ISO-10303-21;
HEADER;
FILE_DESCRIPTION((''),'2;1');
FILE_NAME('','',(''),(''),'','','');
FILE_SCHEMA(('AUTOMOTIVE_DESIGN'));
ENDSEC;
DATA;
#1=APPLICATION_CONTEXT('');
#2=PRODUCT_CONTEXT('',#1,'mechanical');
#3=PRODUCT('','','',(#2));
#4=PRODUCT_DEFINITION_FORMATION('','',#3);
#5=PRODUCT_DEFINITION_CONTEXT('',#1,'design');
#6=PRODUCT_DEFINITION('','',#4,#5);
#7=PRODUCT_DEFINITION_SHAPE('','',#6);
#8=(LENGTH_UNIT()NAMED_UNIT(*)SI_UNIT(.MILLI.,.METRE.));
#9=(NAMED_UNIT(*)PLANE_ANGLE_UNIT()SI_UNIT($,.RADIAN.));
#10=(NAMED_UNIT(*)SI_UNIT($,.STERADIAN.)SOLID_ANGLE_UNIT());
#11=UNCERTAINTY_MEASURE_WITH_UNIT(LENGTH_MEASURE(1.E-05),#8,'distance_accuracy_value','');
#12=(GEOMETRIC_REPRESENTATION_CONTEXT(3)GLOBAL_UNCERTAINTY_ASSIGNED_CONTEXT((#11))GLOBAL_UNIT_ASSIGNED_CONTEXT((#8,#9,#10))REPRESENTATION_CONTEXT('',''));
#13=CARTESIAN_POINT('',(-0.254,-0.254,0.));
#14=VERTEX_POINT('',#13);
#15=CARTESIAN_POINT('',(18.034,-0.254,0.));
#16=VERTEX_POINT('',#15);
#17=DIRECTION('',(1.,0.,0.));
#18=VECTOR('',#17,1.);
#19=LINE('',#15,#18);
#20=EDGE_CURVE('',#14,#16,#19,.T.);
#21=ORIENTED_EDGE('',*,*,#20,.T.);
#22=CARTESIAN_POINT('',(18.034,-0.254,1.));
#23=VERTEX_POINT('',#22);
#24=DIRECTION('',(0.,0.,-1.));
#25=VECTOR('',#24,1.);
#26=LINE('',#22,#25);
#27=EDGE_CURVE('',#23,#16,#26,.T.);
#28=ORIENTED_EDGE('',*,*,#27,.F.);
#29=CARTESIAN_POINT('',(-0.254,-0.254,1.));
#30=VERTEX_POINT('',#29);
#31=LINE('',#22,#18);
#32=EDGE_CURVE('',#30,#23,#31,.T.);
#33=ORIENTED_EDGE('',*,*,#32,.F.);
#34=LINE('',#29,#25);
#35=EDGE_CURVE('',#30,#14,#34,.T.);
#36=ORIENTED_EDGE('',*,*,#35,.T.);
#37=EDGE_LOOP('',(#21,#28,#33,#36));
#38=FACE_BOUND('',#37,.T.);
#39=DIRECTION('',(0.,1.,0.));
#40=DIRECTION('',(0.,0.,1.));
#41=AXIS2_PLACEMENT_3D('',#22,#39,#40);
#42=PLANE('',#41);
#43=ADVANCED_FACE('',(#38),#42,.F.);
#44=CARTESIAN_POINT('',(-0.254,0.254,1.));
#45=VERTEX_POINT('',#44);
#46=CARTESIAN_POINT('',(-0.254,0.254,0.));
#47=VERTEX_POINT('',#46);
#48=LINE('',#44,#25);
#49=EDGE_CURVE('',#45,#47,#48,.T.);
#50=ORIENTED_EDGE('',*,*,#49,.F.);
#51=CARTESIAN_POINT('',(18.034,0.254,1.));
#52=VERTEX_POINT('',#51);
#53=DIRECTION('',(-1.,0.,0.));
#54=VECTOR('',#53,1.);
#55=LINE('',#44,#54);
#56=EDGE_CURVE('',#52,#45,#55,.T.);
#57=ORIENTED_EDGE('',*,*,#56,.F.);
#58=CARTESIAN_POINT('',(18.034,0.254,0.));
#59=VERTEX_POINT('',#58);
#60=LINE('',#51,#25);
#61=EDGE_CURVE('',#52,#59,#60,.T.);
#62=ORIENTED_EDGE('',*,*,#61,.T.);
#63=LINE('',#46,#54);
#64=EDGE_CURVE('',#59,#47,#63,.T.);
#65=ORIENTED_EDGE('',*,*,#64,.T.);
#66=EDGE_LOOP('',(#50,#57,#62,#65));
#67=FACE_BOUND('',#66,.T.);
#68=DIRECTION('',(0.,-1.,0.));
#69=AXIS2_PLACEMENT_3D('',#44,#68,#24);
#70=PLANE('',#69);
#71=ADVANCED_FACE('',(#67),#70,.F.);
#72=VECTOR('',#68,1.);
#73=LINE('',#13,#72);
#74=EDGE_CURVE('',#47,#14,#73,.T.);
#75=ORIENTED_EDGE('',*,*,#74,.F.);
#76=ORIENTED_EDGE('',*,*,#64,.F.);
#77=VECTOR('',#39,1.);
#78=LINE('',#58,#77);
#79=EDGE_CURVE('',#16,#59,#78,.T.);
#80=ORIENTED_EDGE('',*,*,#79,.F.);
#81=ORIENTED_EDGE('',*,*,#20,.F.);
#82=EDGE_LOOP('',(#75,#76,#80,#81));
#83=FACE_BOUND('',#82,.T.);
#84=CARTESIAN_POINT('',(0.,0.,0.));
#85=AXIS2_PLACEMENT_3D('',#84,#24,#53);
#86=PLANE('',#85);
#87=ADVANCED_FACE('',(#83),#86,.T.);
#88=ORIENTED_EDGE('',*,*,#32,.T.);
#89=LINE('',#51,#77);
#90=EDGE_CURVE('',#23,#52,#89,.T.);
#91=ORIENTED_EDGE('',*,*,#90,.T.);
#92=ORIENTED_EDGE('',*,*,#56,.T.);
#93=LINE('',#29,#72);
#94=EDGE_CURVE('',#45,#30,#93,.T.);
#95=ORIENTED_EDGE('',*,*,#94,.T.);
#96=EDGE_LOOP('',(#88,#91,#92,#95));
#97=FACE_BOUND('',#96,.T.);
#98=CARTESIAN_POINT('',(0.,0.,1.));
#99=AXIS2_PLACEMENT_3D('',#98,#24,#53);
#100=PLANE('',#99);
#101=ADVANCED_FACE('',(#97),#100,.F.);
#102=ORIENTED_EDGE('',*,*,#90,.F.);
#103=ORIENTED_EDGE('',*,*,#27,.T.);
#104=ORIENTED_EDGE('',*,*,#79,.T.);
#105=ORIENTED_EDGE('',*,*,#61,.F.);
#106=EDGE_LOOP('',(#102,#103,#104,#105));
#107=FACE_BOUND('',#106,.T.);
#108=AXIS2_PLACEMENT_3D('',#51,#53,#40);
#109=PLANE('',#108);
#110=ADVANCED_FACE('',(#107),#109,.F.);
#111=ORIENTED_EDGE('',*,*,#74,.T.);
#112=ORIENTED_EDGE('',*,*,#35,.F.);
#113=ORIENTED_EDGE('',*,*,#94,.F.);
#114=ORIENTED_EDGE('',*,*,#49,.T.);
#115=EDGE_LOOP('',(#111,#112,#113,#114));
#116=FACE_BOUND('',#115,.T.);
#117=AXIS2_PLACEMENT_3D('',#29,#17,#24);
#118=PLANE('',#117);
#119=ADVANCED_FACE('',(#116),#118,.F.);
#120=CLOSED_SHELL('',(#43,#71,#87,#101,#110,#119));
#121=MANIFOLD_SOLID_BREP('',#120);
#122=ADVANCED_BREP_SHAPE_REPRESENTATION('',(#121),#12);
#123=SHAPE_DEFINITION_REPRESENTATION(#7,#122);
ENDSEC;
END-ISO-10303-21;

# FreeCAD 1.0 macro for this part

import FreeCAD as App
import Part
import Sketcher
Q = App.Units.Quantity

doc = App.newDocument("Part")
body = doc.addObject("PartDesign::Body", "Body")

sketch1 = body.newObject("Sketcher::SketchObject", "Sketch")
sketch1.AttachmentSupport = (doc.getObject("XY_Plane"), [""])
sketch1.MapMode = "FlatFace"
sketch1.addGeometry([
    Part.LineSegment(App.Vector(-0.3, 0.3, 0), App.Vector(-0.3, -0.3, 0)),
    Part.LineSegment(App.Vector(-0.3, -0.3, 0), App.Vector(18, -0.3, 0)),
    Part.LineSegment(App.Vector(18, -0.3, 0), App.Vector(18, 0.3, 0)),
    Part.LineSegment(App.Vector(18, 0.3, 0), App.Vector(-0.3, 0.3, 0)),
], False)
sketch1.addConstraint([
    Sketcher.Constraint("Coincident", 0, 2, 1, 1),
    Sketcher.Constraint("Coincident", 1, 2, 2, 1),
    Sketcher.Constraint("Coincident", 2, 2, 3, 1),
    Sketcher.Constraint("Coincident", 3, 2, 0, 1),
    Sketcher.Constraint("Vertical", 0),
    Sketcher.Constraint("Horizontal", 1),
    Sketcher.Constraint("Vertical", 2),
    Sketcher.Constraint("Horizontal", 3),
    Sketcher.Constraint("DistanceX", 1, 1, 1, 2, Q("0.72 in")),
    Sketcher.Constraint("DistanceY", 0, 2, 0, 1, Q("0.02 in")),
    Sketcher.Constraint("DistanceX", 0, 2, -1, 1, Q("0.01 in")),
    Sketcher.Constraint("DistanceY", 0, 2, -1, 1, Q("0.01 in")),
])
pad1 = body.newObject("PartDesign::Pad", "Pad")
pad1.Profile = sketch1
pad1.Length = 1

doc.recompute()
